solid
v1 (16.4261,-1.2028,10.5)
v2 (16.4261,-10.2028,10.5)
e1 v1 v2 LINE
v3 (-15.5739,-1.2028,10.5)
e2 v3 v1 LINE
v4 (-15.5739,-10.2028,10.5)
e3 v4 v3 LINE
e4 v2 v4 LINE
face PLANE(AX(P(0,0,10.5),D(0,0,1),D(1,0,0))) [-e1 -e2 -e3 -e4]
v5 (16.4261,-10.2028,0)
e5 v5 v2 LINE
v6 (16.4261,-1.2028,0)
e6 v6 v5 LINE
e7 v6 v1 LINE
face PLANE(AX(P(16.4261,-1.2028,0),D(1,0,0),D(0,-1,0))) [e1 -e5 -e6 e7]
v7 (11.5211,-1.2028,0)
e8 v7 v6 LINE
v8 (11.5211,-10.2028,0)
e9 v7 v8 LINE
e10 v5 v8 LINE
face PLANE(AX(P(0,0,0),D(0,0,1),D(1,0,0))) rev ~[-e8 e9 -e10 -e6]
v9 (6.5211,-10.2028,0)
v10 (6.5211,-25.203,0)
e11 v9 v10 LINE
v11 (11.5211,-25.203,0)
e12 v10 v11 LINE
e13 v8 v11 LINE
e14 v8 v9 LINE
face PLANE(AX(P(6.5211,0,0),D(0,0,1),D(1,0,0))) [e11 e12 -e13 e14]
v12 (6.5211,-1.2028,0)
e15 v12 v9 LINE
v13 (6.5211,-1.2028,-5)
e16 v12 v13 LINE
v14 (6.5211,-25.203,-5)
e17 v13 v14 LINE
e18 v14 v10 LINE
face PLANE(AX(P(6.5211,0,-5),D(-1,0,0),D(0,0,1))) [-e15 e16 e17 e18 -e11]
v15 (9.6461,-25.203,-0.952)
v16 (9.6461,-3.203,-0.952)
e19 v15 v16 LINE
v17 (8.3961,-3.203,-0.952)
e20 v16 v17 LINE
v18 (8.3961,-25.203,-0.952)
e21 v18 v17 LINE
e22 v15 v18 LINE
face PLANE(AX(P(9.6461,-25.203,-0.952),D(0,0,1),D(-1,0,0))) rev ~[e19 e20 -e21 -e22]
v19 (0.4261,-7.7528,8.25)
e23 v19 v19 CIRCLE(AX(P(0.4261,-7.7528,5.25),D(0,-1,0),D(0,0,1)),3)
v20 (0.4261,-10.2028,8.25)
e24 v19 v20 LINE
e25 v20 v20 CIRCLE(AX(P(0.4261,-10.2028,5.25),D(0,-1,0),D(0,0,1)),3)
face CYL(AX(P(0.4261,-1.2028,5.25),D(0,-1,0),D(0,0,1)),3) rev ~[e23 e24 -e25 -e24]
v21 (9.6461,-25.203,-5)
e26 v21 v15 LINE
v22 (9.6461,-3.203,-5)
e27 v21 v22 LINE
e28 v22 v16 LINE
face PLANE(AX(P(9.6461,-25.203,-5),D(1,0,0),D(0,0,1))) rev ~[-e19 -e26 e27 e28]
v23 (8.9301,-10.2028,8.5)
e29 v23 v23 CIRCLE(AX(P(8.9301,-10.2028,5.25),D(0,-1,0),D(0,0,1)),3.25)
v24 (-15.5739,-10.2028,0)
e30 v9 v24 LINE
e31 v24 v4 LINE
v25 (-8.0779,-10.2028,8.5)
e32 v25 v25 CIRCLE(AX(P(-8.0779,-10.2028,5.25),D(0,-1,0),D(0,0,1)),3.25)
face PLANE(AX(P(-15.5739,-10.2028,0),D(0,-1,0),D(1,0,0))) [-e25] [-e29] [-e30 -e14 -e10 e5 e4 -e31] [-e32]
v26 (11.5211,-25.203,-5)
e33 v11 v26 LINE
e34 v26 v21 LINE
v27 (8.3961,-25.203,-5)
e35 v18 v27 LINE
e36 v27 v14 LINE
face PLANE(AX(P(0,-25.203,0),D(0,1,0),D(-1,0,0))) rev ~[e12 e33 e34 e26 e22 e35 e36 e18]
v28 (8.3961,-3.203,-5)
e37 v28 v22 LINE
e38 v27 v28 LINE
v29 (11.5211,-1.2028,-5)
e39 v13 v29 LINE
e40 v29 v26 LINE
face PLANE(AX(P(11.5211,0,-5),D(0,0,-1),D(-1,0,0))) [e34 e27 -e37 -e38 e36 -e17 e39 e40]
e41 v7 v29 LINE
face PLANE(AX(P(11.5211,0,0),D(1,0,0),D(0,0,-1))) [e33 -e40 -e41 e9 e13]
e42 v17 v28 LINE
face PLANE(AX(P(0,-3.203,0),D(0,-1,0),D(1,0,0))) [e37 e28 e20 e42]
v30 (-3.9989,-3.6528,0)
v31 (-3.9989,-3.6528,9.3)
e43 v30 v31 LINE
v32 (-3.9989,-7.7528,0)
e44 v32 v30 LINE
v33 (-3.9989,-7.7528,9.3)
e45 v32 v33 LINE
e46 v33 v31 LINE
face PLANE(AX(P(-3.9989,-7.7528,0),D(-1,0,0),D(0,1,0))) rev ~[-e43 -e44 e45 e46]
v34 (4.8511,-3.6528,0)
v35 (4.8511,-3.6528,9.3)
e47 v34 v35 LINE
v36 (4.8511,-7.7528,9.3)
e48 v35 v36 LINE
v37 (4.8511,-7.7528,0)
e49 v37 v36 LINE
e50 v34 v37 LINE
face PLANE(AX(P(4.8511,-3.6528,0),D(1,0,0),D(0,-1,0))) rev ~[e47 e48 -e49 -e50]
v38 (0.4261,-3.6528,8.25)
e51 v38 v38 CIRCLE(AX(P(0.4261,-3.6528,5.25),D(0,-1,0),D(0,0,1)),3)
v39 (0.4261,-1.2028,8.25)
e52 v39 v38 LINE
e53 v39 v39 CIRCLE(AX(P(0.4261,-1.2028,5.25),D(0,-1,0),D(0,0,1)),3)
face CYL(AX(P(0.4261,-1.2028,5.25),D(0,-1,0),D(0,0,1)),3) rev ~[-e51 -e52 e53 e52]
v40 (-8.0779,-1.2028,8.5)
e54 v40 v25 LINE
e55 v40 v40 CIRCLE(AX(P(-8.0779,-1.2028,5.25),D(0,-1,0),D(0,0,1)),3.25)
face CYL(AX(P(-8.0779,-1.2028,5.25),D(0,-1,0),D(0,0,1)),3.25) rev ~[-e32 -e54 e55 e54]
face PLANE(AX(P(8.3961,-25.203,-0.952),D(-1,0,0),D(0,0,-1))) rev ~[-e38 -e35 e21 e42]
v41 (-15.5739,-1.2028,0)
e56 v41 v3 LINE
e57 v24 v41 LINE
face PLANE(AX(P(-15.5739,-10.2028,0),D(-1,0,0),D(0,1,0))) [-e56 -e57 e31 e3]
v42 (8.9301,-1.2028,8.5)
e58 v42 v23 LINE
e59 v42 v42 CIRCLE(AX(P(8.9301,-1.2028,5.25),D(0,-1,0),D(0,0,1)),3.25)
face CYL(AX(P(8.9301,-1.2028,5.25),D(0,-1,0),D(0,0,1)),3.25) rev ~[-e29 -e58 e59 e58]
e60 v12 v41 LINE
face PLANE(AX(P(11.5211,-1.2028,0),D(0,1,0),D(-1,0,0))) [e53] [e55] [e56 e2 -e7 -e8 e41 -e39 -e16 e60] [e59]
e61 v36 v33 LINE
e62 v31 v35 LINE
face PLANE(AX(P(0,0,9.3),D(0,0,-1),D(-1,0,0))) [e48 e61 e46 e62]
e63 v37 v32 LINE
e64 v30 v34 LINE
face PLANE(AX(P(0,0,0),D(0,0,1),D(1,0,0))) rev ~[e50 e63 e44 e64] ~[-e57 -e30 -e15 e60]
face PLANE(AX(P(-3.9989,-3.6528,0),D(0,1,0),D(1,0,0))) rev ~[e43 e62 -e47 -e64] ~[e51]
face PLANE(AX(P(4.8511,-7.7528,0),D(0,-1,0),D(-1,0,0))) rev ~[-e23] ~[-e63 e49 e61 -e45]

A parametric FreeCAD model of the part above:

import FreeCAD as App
import Part
import Sketcher
from FreeCAD import Vector
Q = App.Units.Quantity

doc = App.newDocument("Part")
params = doc.addObject("Spreadsheet::Sheet", "Params")
for row, (alias, value) in enumerate([
    ("sketch1_width", "32 mm"),
    ("sketch1_height", "9 mm"),
    ("pad1_length", "10.5 mm"),
    ("sketch2_height", "4.1 mm"),
    ("sketch2_width", "8.85 mm"),
    ("pocket1_length", "9.3 mm"),
    ("sketch3_width", "5 mm"),
    ("sketch3_height", "1.2 mm"),
    ("pad2_length", "15 mm"),
    ("sketch4_width", "5 mm"),
    ("sketch4_height", "24 mm"),
    ("pad3_length", "5 mm"),
    ("sketch5_width", "1.25 mm"),
    ("pocket2_length", "22 mm"),
    ("sketch6_width", "5 mm"),
    ("sketch6_height", "1.2 mm"),
    ("pocket3_length", "15 mm"),
    ("sketch7_width", "5 mm"),
    ("pad4_length", "25.203 mm"),
    ("sketch8_width", "5 mm"),
    ("pocket4_length", "25 mm"),
    ("sketch9_width", "1.25 mm"),
    ("pocket5_length", "22 mm"),
    ("sketch10_width", "5 mm"),
    ("pocket6_length", "25 mm"),
    ("sketch11_diameter", "6 mm"),
    ("hole_diameter", "6 mm"),
    ("sketch12_diameter", "6.5 mm"),
    ("hole2_diameter", "6.5 mm"),
], start=1):
    params.set(f"A{row}", alias)
    params.set(f"B{row}", "=" + value)
    params.setAlias(f"B{row}", alias)

body = doc.addObject("PartDesign::Body", "Body")

# Sketch on XY plane
sketch1 = body.newObject("Sketcher::SketchObject", "Sketch")
sketch1.AttachmentSupport = (doc.getObject("XY_Plane"), [""])
sketch1.MapMode = "FlatFace"
sketch1.addGeometry(Part.LineSegment(Vector(16, -1, 0), Vector(-16, -1, 0)), False)
sketch1.addGeometry(Part.LineSegment(Vector(-16, -1, 0), Vector(-16, -10, 0)), False)
sketch1.addGeometry(Part.LineSegment(Vector(-16, -10, 0), Vector(16, -10, 0)), False)
sketch1.addGeometry(Part.LineSegment(Vector(16, -10, 0), Vector(16, -1, 0)), False)
sketch1.addConstraint(Sketcher.Constraint("Coincident", 0, 2, 1, 1))
sketch1.addConstraint(Sketcher.Constraint("Coincident", 1, 2, 2, 1))
sketch1.addConstraint(Sketcher.Constraint("Coincident", 2, 2, 3, 1))
sketch1.addConstraint(Sketcher.Constraint("Coincident", 3, 2, 0, 1))
sketch1.addConstraint(Sketcher.Constraint("Horizontal", 0))
sketch1.addConstraint(Sketcher.Constraint("Vertical", 1))
sketch1.addConstraint(Sketcher.Constraint("Horizontal", 2))
sketch1.addConstraint(Sketcher.Constraint("Vertical", 3))
sketch1.addConstraint(Sketcher.Constraint("DistanceX", 0, 2, 0, 1, Q("32 mm")))
sketch1.addConstraint(Sketcher.Constraint("DistanceY", 1, 2, 1, 1, Q("9 mm")))
sketch1.addConstraint(Sketcher.Constraint("DistanceX", 0, 2, -1, 1, Q("15.574 mm")))
sketch1.addConstraint(Sketcher.Constraint("DistanceY", 0, 2, -1, 1, Q("1.2028 mm")))
sketch1.setExpression("Constraints[8]", "Params.sketch1_width")
sketch1.setExpression("Constraints[9]", "Params.sketch1_height")
pad1 = body.newObject("PartDesign::Pad", "Pad")
pad1.Profile = sketch1
pad1.setExpression("Length", "Params.pad1_length")

# Sketch on XY plane
sketch2 = body.newObject("Sketcher::SketchObject", "Sketch001")
sketch2.AttachmentSupport = (doc.getObject("XY_Plane"), [""])
sketch2.MapMode = "FlatFace"
sketch2.addGeometry(Part.LineSegment(Vector(4.9, -3.7, 0), Vector(4.9, -7.8, 0)), False)
sketch2.addGeometry(Part.LineSegment(Vector(4.9, -7.8, 0), Vector(-4, -7.8, 0)), False)
sketch2.addGeometry(Part.LineSegment(Vector(-4, -7.8, 0), Vector(-4, -3.7, 0)), False)
sketch2.addGeometry(Part.LineSegment(Vector(-4, -3.7, 0), Vector(4.9, -3.7, 0)), False)
sketch2.addConstraint(Sketcher.Constraint("Coincident", 0, 2, 1, 1))
sketch2.addConstraint(Sketcher.Constraint("Coincident", 1, 2, 2, 1))
sketch2.addConstraint(Sketcher.Constraint("Coincident", 2, 2, 3, 1))
sketch2.addConstraint(Sketcher.Constraint("Coincident", 3, 2, 0, 1))
sketch2.addConstraint(Sketcher.Constraint("Vertical", 0))
sketch2.addConstraint(Sketcher.Constraint("Horizontal", 1))
sketch2.addConstraint(Sketcher.Constraint("Vertical", 2))
sketch2.addConstraint(Sketcher.Constraint("Horizontal", 3))
sketch2.addConstraint(Sketcher.Constraint("DistanceY", 0, 2, 0, 1, Q("4.1 mm")))
sketch2.addConstraint(Sketcher.Constraint("DistanceX", 1, 2, 1, 1, Q("8.85 mm")))
sketch2.addConstraint(Sketcher.Constraint("DistanceX", -1, 1, 0, 2, Q("4.851 mm")))
sketch2.addConstraint(Sketcher.Constraint("DistanceY", 0, 2, -1, 1, Q("7.7528 mm")))
sketch2.setExpression("Constraints[8]", "Params.sketch2_height")
sketch2.setExpression("Constraints[9]", "Params.sketch2_width")
pocket1 = body.newObject("PartDesign::Pocket", "Pocket")
pocket1.Profile = sketch2
pocket1.setExpression("Length", "Params.pocket1_length")
pocket1.Reversed = True

# Sketch on XZ plane
sketch3 = body.newObject("Sketcher::SketchObject", "Sketch002")
sketch3.AttachmentSupport = (doc.getObject("XZ_Plane"), [""])
sketch3.MapMode = "FlatFace"
sketch3.AttachmentOffset = App.Placement(Vector(0, 0, 10.2028), App.Rotation())
sketch3.addGeometry(Part.LineSegment(Vector(-10.7, 1.2, 0), Vector(-10.7, 0, 0)), False)
sketch3.addGeometry(Part.LineSegment(Vector(-10.7, 0, 0), Vector(-5.7, 0, 0)), False)
sketch3.addGeometry(Part.LineSegment(Vector(-5.7, 0, 0), Vector(-5.7, 1.2, 0)), False)
sketch3.addGeometry(Part.LineSegment(Vector(-5.7, 1.2, 0), Vector(-10.7, 1.2, 0)), False)
sketch3.addConstraint(Sketcher.Constraint("Coincident", 0, 2, 1, 1))
sketch3.addConstraint(Sketcher.Constraint("Coincident", 1, 2, 2, 1))
sketch3.addConstraint(Sketcher.Constraint("Coincident", 2, 2, 3, 1))
sketch3.addConstraint(Sketcher.Constraint("Coincident", 3, 2, 0, 1))
sketch3.addConstraint(Sketcher.Constraint("Vertical", 0))
sketch3.addConstraint(Sketcher.Constraint("Horizontal", 1))
sketch3.addConstraint(Sketcher.Constraint("Vertical", 2))
sketch3.addConstraint(Sketcher.Constraint("Horizontal", 3))
sketch3.addConstraint(Sketcher.Constraint("PointOnObject", 0, 2, -1))
sketch3.addConstraint(Sketcher.Constraint("DistanceX", 1, 1, 1, 2, Q("5 mm")))
sketch3.addConstraint(Sketcher.Constraint("DistanceY", 0, 2, 0, 1, Q("1.2 mm")))
sketch3.addConstraint(Sketcher.Constraint("DistanceX", 0, 2, -1, 1, Q("10.6694 mm")))
sketch3.setExpression("Constraints[9]", "Params.sketch3_width")
sketch3.setExpression("Constraints[10]", "Params.sketch3_height")
pad2 = body.newObject("PartDesign::Pad", "Pad001")
pad2.Profile = sketch3
pad2.setExpression("Length", "Params.pad2_length")

# Sketch on XY plane
sketch4 = body.newObject("Sketcher::SketchObject", "Sketch003")
sketch4.AttachmentSupport = (doc.getObject("XY_Plane"), [""])
sketch4.MapMode = "FlatFace"
sketch4.addGeometry(Part.LineSegment(Vector(-5.7, -1.2, 0), Vector(-5.7, -25.2, 0)), False)
sketch4.addGeometry(Part.LineSegment(Vector(-5.7, -25.2, 0), Vector(-10.7, -25.2, 0)), False)
sketch4.addGeometry(Part.LineSegment(Vector(-10.7, -25.2, 0), Vector(-10.7, -1.2, 0)), False)
sketch4.addGeometry(Part.LineSegment(Vector(-10.7, -1.2, 0), Vector(-5.7, -1.2, 0)), False)
sketch4.addConstraint(Sketcher.Constraint("Coincident", 0, 2, 1, 1))
sketch4.addConstraint(Sketcher.Constraint("Coincident", 1, 2, 2, 1))
sketch4.addConstraint(Sketcher.Constraint("Coincident", 2, 2, 3, 1))
sketch4.addConstraint(Sketcher.Constraint("Coincident", 3, 2, 0, 1))
sketch4.addConstraint(Sketcher.Constraint("Vertical", 0))
sketch4.addConstraint(Sketcher.Constraint("Horizontal", 1))
sketch4.addConstraint(Sketcher.Constraint("Vertical", 2))
sketch4.addConstraint(Sketcher.Constraint("Horizontal", 3))
sketch4.addConstraint(Sketcher.Constraint("DistanceX", 1, 2, 1, 1, Q("5 mm")))
sketch4.addConstraint(Sketcher.Constraint("DistanceY", 0, 2, 0, 1, Q("24 mm")))
sketch4.addConstraint(Sketcher.Constraint("DistanceX", 0, 2, -1, 1, Q("5.6694 mm")))
sketch4.addConstraint(Sketcher.Constraint("DistanceY", 0, 2, -1, 1, Q("25.2028 mm")))
sketch4.setExpression("Constraints[8]", "Params.sketch4_width")
sketch4.setExpression("Constraints[9]", "Params.sketch4_height")
pad3 = body.newObject("PartDesign::Pad", "Pad002")
pad3.Profile = sketch4
pad3.setExpression("Length", "Params.pad3_length")
pad3.Reversed = True

# Sketch on XZ plane
sketch5 = body.newObject("Sketcher::SketchObject", "Sketch004")
sketch5.AttachmentSupport = (doc.getObject("XZ_Plane"), [""])
sketch5.MapMode = "FlatFace"
sketch5.AttachmentOffset = App.Placement(Vector(0, 0, 25.2028), App.Rotation())
sketch5.addGeometry(Part.LineSegment(Vector(-8.8, -1, 0), Vector(-8.8, -5, 0)), False)
sketch5.addGeometry(Part.LineSegment(Vector(-8.8, -5, 0), Vector(-7.5, -5, 0)), False)
sketch5.addGeometry(Part.LineSegment(Vector(-7.5, -5, 0), Vector(-7.5, -1, 0)), False)
sketch5.addGeometry(Part.LineSegment(Vector(-7.5, -1, 0), Vector(-8.8, -1, 0)), False)
sketch5.addConstraint(Sketcher.Constraint("Coincident", 0, 2, 1, 1))
sketch5.addConstraint(Sketcher.Constraint("Coincident", 1, 2, 2, 1))
sketch5.addConstraint(Sketcher.Constraint("Coincident", 2, 2, 3, 1))
sketch5.addConstraint(Sketcher.Constraint("Coincident", 3, 2, 0, 1))
sketch5.addConstraint(Sketcher.Constraint("Vertical", 0))
sketch5.addConstraint(Sketcher.Constraint("Horizontal", 1))
sketch5.addConstraint(Sketcher.Constraint("Vertical", 2))
sketch5.addConstraint(Sketcher.Constraint("Horizontal", 3))
sketch5.addConstraint(Sketcher.Constraint("DistanceX", 1, 1, 1, 2, Q("1.25 mm")))
sketch5.addConstraint(Sketcher.Constraint("DistanceY", 0, 2, 0, 1, Q("4.0475 mm")))
sketch5.addConstraint(Sketcher.Constraint("DistanceY", 0, 2, -1, 1, Q("5 mm")))
sketch5.addConstraint(Sketcher.Constraint("DistanceX", 0, 2, -1, 1, Q("8.7944 mm")))
sketch5.setExpression("Constraints[8]", "Params.sketch5_width")
pocket2 = body.newObject("PartDesign::Pocket", "Pocket001")
pocket2.Profile = sketch5
pocket2.setExpression("Length", "Params.pocket2_length")

# Sketch on XZ plane
sketch6 = body.newObject("Sketcher::SketchObject", "Sketch005")
sketch6.AttachmentSupport = (doc.getObject("XZ_Plane"), [""])
sketch6.MapMode = "FlatFace"
sketch6.AttachmentOffset = App.Placement(Vector(0, 0, 25.2028), App.Rotation())
sketch6.addGeometry(Part.LineSegment(Vector(-5.7, 0, 0), Vector(-5.7, 1.2, 0)), False)
sketch6.addGeometry(Part.LineSegment(Vector(-5.7, 1.2, 0), Vector(-10.7, 1.2, 0)), False)
sketch6.addGeometry(Part.LineSegment(Vector(-10.7, 1.2, 0), Vector(-10.7, 0, 0)), False)
sketch6.addGeometry(Part.LineSegment(Vector(-10.7, 0, 0), Vector(-5.7, 0, 0)), False)
sketch6.addConstraint(Sketcher.Constraint("Coincident", 0, 2, 1, 1))
sketch6.addConstraint(Sketcher.Constraint("Coincident", 1, 2, 2, 1))
sketch6.addConstraint(Sketcher.Constraint("Coincident", 2, 2, 3, 1))
sketch6.addConstraint(Sketcher.Constraint("Coincident", 3, 2, 0, 1))
sketch6.addConstraint(Sketcher.Constraint("Vertical", 0))
sketch6.addConstraint(Sketcher.Constraint("Horizontal", 1))
sketch6.addConstraint(Sketcher.Constraint("Vertical", 2))
sketch6.addConstraint(Sketcher.Constraint("Horizontal", 3))
sketch6.addConstraint(Sketcher.Constraint("PointOnObject", 2, 2, -1))
sketch6.addConstraint(Sketcher.Constraint("DistanceX", 1, 2, 1, 1, Q("5 mm")))
sketch6.addConstraint(Sketcher.Constraint("DistanceY", 0, 1, 0, 2, Q("1.2 mm")))
sketch6.addConstraint(Sketcher.Constraint("DistanceX", 0, 2, -1, 1, Q("5.6694 mm")))
sketch6.setExpression("Constraints[9]", "Params.sketch6_width")
sketch6.setExpression("Constraints[10]", "Params.sketch6_height")
pocket3 = body.newObject("PartDesign::Pocket", "Pocket002")
pocket3.Profile = sketch6
pocket3.setExpression("Length", "Params.pocket3_length")

# Sketch on XZ plane
sketch7 = body.newObject("Sketcher::SketchObject", "Sketch006")
sketch7.AttachmentSupport = (doc.getObject("XZ_Plane"), [""])
sketch7.MapMode = "FlatFace"
sketch7.addGeometry(Part.LineSegment(Vector(7, -5, 0), Vector(7, 0, 0)), False)
sketch7.addGeometry(Part.LineSegment(Vector(7, 0, 0), Vector(12, 0, 0)), False)
sketch7.addGeometry(Part.LineSegment(Vector(12, 0, 0), Vector(12, -5, 0)), False)
sketch7.addGeometry(Part.LineSegment(Vector(12, -5, 0), Vector(7, -5, 0)), False)
sketch7.addConstraint(Sketcher.Constraint("Coincident", 0, 2, 1, 1))
sketch7.addConstraint(Sketcher.Constraint("Coincident", 1, 2, 2, 1))
sketch7.addConstraint(Sketcher.Constraint("Coincident", 2, 2, 3, 1))
sketch7.addConstraint(Sketcher.Constraint("Coincident", 3, 2, 0, 1))
sketch7.addConstraint(Sketcher.Constraint("Vertical", 0))
sketch7.addConstraint(Sketcher.Constraint("Horizontal", 1))
sketch7.addConstraint(Sketcher.Constraint("Vertical", 2))
sketch7.addConstraint(Sketcher.Constraint("Horizontal", 3))
sketch7.addConstraint(Sketcher.Constraint("PointOnObject", 0, 2, -1))
sketch7.addConstraint(Sketcher.Constraint("Equal", 3, 0))
sketch7.addConstraint(Sketcher.Constraint("DistanceX", 1, 1, 1, 2, Q("5 mm")))
sketch7.addConstraint(Sketcher.Constraint("DistanceX", -1, 1, 0, 2, Q("6.521 mm")))
sketch7.setExpression("Constraints[10]", "Params.sketch7_width")
pad4 = body.newObject("PartDesign::Pad", "Pad003")
pad4.Profile = sketch7
pad4.setExpression("Length", "Params.pad4_length")

# Sketch on XY plane
sketch8 = body.newObject("Sketcher::SketchObject", "Sketch007")
sketch8.AttachmentSupport = (doc.getObject("XY_Plane"), [""])
sketch8.MapMode = "FlatFace"
sketch8.addGeometry(Part.LineSegment(Vector(11.5, 0, 0), Vector(6.5, 0, 0)), False)
sketch8.addGeometry(Part.LineSegment(Vector(6.5, 0, 0), Vector(6.5, -1.2, 0)), False)
sketch8.addGeometry(Part.LineSegment(Vector(6.5, -1.2, 0), Vector(11.5, -1.2, 0)), False)
sketch8.addGeometry(Part.LineSegment(Vector(11.5, -1.2, 0), Vector(11.5, 0, 0)), False)
sketch8.addConstraint(Sketcher.Constraint("Coincident", 0, 2, 1, 1))
sketch8.addConstraint(Sketcher.Constraint("Coincident", 1, 2, 2, 1))
sketch8.addConstraint(Sketcher.Constraint("Coincident", 2, 2, 3, 1))
sketch8.addConstraint(Sketcher.Constraint("Coincident", 3, 2, 0, 1))
sketch8.addConstraint(Sketcher.Constraint("Horizontal", 0))
sketch8.addConstraint(Sketcher.Constraint("Vertical", 1))
sketch8.addConstraint(Sketcher.Constraint("Horizontal", 2))
sketch8.addConstraint(Sketcher.Constraint("Vertical", 3))
sketch8.addConstraint(Sketcher.Constraint("PointOnObject", 0, 2, -1))
sketch8.addConstraint(Sketcher.Constraint("DistanceX", 0, 2, 0, 1, Q("5 mm")))
sketch8.addConstraint(Sketcher.Constraint("DistanceY", 1, 2, 1, 1, Q("1.2028 mm")))
sketch8.addConstraint(Sketcher.Constraint("DistanceX", -1, 1, 0, 2, Q("6.521 mm")))
sketch8.setExpression("Constraints[9]", "Params.sketch8_width")
pocket4 = body.newObject("PartDesign::Pocket", "Pocket003")
pocket4.Profile = sketch8
pocket4.setExpression("Length", "Params.pocket4_length")

# Sketch on XZ plane
sketch9 = body.newObject("Sketcher::SketchObject", "Sketch008")
sketch9.AttachmentSupport = (doc.getObject("XZ_Plane"), [""])
sketch9.MapMode = "FlatFace"
sketch9.AttachmentOffset = App.Placement(Vector(0, 0, 25.203), App.Rotation())
sketch9.addGeometry(Part.LineSegment(Vector(8.4, -1, 0), Vector(8.4, -5, 0)), False)
sketch9.addGeometry(Part.LineSegment(Vector(8.4, -5, 0), Vector(9.6, -5, 0)), False)
sketch9.addGeometry(Part.LineSegment(Vector(9.6, -5, 0), Vector(9.6, -1, 0)), False)
sketch9.addGeometry(Part.LineSegment(Vector(9.6, -1, 0), Vector(8.4, -1, 0)), False)
sketch9.addConstraint(Sketcher.Constraint("Coincident", 0, 2, 1, 1))
sketch9.addConstraint(Sketcher.Constraint("Coincident", 1, 2, 2, 1))
sketch9.addConstraint(Sketcher.Constraint("Coincident", 2, 2, 3, 1))
sketch9.addConstraint(Sketcher.Constraint("Coincident", 3, 2, 0, 1))
sketch9.addConstraint(Sketcher.Constraint("Vertical", 0))
sketch9.addConstraint(Sketcher.Constraint("Horizontal", 1))
sketch9.addConstraint(Sketcher.Constraint("Vertical", 2))
sketch9.addConstraint(Sketcher.Constraint("Horizontal", 3))
sketch9.addConstraint(Sketcher.Constraint("DistanceX", 1, 1, 1, 2, Q("1.25 mm")))
sketch9.addConstraint(Sketcher.Constraint("DistanceY", 0, 2, 0, 1, Q("4.048 mm")))
sketch9.addConstraint(Sketcher.Constraint("DistanceY", 0, 2, -1, 1, Q("5 mm")))
sketch9.addConstraint(Sketcher.Constraint("DistanceX", -1, 1, 0, 2, Q("8.396 mm")))
sketch9.setExpression("Constraints[8]", "Params.sketch9_width")
pocket5 = body.newObject("PartDesign::Pocket", "Pocket004")
pocket5.Profile = sketch9
pocket5.setExpression("Length", "Params.pocket5_length")

# Sketch on XZ plane
sketch10 = body.newObject("Sketcher::SketchObject", "Sketch009")
sketch10.AttachmentSupport = (doc.getObject("XZ_Plane"), [""])
sketch10.MapMode = "FlatFace"
sketch10.AttachmentOffset = App.Placement(Vector(0, 0, 25.2028), App.Rotation())
sketch10.addGeometry(Part.LineSegment(Vector(-10.7, 0, 0), Vector(-10.7, -5, 0)), False)
sketch10.addGeometry(Part.LineSegment(Vector(-10.7, -5, 0), Vector(-5.7, -5, 0)), False)
sketch10.addGeometry(Part.LineSegment(Vector(-5.7, -5, 0), Vector(-5.7, 0, 0)), False)
sketch10.addGeometry(Part.LineSegment(Vector(-5.7, 0, 0), Vector(-10.7, 0, 0)), False)
sketch10.addConstraint(Sketcher.Constraint("Coincident", 0, 2, 1, 1))
sketch10.addConstraint(Sketcher.Constraint("Coincident", 1, 2, 2, 1))
sketch10.addConstraint(Sketcher.Constraint("Coincident", 2, 2, 3, 1))
sketch10.addConstraint(Sketcher.Constraint("Coincident", 3, 2, 0, 1))
sketch10.addConstraint(Sketcher.Constraint("Vertical", 0))
sketch10.addConstraint(Sketcher.Constraint("Horizontal", 1))
sketch10.addConstraint(Sketcher.Constraint("Vertical", 2))
sketch10.addConstraint(Sketcher.Constraint("Horizontal", 3))
sketch10.addConstraint(Sketcher.Constraint("PointOnObject", 2, 2, -1))
sketch10.addConstraint(Sketcher.Constraint("Equal", 3, 0))
sketch10.addConstraint(Sketcher.Constraint("DistanceX", 1, 1, 1, 2, Q("5 mm")))
sketch10.addConstraint(Sketcher.Constraint("DistanceX", 0, 2, -1, 1, Q("10.6694 mm")))
sketch10.setExpression("Constraints[10]", "Params.sketch10_width")
pocket6 = body.newObject("PartDesign::Pocket", "Pocket005")
pocket6.Profile = sketch10
pocket6.setExpression("Length", "Params.pocket6_length")

# Sketch on XZ plane
sketch11 = body.newObject("Sketcher::SketchObject", "Sketch010")
sketch11.AttachmentSupport = (doc.getObject("XZ_Plane"), [""])
sketch11.MapMode = "FlatFace"
sketch11.AttachmentOffset = App.Placement(Vector(0, 0, 1.2028), App.Rotation())
sketch11.addGeometry(Part.Circle(Vector(0.4, 5.2, 0), Vector(0, 0, 1), 3), False)
sketch11.addConstraint(Sketcher.Constraint("Diameter", 0, Q("6 mm")))
sketch11.addConstraint(Sketcher.Constraint("DistanceY", -1, 1, 0, 3, Q("5.25 mm")))
sketch11.addConstraint(Sketcher.Constraint("DistanceX", -1, 1, 0, 3, Q("0.426 mm")))
sketch11.setExpression("Constraints[0]", "Params.sketch11_diameter")
doc.recompute()
hole = body.newObject("PartDesign::Hole", "Hole")
hole.Profile = sketch11
hole.ThreadType = "None"
hole.setExpression("Diameter", "Params.hole_diameter")
hole.DepthType = "ThroughAll"
hole.Reversed = True

# Sketch on XZ plane
sketch12 = body.newObject("Sketcher::SketchObject", "Sketch011")
sketch12.AttachmentSupport = (doc.getObject("XZ_Plane"), [""])
sketch12.MapMode = "FlatFace"
sketch12.AttachmentOffset = App.Placement(Vector(0, 0, 1.2028), App.Rotation())
sketch12.addGeometry(Part.Circle(Vector(-8.1, 5.2, 0), Vector(0, 0, 1), 3.2), False)
sketch12.addGeometry(Part.Circle(Vector(8.9, 5.2, 0), Vector(0, 0, 1), 3.2), False)
sketch12.addConstraint(Sketcher.Constraint("Equal", 0, 1))
sketch12.addConstraint(Sketcher.Constraint("Horizontal", 0, 3, 1, 3))
sketch12.addConstraint(Sketcher.Constraint("Diameter", 0, Q("6.5 mm")))
sketch12.addConstraint(Sketcher.Constraint("DistanceY", -1, 1, 0, 3, Q("5.25 mm")))
sketch12.addConstraint(Sketcher.Constraint("DistanceX", -1, 1, 1, 3, Q("8.93 mm")))
sketch12.addConstraint(Sketcher.Constraint("DistanceX", 0, 3, -1, 1, Q("8.078 mm")))
sketch12.setExpression("Constraints[2]", "Params.sketch12_diameter")
doc.recompute()
hole2 = body.newObject("PartDesign::Hole", "Hole001")
hole2.Profile = sketch12
hole2.ThreadType = "None"
hole2.setExpression("Diameter", "Params.hole2_diameter")
hole2.DepthType = "ThroughAll"
hole2.Reversed = True

doc.recompute()
